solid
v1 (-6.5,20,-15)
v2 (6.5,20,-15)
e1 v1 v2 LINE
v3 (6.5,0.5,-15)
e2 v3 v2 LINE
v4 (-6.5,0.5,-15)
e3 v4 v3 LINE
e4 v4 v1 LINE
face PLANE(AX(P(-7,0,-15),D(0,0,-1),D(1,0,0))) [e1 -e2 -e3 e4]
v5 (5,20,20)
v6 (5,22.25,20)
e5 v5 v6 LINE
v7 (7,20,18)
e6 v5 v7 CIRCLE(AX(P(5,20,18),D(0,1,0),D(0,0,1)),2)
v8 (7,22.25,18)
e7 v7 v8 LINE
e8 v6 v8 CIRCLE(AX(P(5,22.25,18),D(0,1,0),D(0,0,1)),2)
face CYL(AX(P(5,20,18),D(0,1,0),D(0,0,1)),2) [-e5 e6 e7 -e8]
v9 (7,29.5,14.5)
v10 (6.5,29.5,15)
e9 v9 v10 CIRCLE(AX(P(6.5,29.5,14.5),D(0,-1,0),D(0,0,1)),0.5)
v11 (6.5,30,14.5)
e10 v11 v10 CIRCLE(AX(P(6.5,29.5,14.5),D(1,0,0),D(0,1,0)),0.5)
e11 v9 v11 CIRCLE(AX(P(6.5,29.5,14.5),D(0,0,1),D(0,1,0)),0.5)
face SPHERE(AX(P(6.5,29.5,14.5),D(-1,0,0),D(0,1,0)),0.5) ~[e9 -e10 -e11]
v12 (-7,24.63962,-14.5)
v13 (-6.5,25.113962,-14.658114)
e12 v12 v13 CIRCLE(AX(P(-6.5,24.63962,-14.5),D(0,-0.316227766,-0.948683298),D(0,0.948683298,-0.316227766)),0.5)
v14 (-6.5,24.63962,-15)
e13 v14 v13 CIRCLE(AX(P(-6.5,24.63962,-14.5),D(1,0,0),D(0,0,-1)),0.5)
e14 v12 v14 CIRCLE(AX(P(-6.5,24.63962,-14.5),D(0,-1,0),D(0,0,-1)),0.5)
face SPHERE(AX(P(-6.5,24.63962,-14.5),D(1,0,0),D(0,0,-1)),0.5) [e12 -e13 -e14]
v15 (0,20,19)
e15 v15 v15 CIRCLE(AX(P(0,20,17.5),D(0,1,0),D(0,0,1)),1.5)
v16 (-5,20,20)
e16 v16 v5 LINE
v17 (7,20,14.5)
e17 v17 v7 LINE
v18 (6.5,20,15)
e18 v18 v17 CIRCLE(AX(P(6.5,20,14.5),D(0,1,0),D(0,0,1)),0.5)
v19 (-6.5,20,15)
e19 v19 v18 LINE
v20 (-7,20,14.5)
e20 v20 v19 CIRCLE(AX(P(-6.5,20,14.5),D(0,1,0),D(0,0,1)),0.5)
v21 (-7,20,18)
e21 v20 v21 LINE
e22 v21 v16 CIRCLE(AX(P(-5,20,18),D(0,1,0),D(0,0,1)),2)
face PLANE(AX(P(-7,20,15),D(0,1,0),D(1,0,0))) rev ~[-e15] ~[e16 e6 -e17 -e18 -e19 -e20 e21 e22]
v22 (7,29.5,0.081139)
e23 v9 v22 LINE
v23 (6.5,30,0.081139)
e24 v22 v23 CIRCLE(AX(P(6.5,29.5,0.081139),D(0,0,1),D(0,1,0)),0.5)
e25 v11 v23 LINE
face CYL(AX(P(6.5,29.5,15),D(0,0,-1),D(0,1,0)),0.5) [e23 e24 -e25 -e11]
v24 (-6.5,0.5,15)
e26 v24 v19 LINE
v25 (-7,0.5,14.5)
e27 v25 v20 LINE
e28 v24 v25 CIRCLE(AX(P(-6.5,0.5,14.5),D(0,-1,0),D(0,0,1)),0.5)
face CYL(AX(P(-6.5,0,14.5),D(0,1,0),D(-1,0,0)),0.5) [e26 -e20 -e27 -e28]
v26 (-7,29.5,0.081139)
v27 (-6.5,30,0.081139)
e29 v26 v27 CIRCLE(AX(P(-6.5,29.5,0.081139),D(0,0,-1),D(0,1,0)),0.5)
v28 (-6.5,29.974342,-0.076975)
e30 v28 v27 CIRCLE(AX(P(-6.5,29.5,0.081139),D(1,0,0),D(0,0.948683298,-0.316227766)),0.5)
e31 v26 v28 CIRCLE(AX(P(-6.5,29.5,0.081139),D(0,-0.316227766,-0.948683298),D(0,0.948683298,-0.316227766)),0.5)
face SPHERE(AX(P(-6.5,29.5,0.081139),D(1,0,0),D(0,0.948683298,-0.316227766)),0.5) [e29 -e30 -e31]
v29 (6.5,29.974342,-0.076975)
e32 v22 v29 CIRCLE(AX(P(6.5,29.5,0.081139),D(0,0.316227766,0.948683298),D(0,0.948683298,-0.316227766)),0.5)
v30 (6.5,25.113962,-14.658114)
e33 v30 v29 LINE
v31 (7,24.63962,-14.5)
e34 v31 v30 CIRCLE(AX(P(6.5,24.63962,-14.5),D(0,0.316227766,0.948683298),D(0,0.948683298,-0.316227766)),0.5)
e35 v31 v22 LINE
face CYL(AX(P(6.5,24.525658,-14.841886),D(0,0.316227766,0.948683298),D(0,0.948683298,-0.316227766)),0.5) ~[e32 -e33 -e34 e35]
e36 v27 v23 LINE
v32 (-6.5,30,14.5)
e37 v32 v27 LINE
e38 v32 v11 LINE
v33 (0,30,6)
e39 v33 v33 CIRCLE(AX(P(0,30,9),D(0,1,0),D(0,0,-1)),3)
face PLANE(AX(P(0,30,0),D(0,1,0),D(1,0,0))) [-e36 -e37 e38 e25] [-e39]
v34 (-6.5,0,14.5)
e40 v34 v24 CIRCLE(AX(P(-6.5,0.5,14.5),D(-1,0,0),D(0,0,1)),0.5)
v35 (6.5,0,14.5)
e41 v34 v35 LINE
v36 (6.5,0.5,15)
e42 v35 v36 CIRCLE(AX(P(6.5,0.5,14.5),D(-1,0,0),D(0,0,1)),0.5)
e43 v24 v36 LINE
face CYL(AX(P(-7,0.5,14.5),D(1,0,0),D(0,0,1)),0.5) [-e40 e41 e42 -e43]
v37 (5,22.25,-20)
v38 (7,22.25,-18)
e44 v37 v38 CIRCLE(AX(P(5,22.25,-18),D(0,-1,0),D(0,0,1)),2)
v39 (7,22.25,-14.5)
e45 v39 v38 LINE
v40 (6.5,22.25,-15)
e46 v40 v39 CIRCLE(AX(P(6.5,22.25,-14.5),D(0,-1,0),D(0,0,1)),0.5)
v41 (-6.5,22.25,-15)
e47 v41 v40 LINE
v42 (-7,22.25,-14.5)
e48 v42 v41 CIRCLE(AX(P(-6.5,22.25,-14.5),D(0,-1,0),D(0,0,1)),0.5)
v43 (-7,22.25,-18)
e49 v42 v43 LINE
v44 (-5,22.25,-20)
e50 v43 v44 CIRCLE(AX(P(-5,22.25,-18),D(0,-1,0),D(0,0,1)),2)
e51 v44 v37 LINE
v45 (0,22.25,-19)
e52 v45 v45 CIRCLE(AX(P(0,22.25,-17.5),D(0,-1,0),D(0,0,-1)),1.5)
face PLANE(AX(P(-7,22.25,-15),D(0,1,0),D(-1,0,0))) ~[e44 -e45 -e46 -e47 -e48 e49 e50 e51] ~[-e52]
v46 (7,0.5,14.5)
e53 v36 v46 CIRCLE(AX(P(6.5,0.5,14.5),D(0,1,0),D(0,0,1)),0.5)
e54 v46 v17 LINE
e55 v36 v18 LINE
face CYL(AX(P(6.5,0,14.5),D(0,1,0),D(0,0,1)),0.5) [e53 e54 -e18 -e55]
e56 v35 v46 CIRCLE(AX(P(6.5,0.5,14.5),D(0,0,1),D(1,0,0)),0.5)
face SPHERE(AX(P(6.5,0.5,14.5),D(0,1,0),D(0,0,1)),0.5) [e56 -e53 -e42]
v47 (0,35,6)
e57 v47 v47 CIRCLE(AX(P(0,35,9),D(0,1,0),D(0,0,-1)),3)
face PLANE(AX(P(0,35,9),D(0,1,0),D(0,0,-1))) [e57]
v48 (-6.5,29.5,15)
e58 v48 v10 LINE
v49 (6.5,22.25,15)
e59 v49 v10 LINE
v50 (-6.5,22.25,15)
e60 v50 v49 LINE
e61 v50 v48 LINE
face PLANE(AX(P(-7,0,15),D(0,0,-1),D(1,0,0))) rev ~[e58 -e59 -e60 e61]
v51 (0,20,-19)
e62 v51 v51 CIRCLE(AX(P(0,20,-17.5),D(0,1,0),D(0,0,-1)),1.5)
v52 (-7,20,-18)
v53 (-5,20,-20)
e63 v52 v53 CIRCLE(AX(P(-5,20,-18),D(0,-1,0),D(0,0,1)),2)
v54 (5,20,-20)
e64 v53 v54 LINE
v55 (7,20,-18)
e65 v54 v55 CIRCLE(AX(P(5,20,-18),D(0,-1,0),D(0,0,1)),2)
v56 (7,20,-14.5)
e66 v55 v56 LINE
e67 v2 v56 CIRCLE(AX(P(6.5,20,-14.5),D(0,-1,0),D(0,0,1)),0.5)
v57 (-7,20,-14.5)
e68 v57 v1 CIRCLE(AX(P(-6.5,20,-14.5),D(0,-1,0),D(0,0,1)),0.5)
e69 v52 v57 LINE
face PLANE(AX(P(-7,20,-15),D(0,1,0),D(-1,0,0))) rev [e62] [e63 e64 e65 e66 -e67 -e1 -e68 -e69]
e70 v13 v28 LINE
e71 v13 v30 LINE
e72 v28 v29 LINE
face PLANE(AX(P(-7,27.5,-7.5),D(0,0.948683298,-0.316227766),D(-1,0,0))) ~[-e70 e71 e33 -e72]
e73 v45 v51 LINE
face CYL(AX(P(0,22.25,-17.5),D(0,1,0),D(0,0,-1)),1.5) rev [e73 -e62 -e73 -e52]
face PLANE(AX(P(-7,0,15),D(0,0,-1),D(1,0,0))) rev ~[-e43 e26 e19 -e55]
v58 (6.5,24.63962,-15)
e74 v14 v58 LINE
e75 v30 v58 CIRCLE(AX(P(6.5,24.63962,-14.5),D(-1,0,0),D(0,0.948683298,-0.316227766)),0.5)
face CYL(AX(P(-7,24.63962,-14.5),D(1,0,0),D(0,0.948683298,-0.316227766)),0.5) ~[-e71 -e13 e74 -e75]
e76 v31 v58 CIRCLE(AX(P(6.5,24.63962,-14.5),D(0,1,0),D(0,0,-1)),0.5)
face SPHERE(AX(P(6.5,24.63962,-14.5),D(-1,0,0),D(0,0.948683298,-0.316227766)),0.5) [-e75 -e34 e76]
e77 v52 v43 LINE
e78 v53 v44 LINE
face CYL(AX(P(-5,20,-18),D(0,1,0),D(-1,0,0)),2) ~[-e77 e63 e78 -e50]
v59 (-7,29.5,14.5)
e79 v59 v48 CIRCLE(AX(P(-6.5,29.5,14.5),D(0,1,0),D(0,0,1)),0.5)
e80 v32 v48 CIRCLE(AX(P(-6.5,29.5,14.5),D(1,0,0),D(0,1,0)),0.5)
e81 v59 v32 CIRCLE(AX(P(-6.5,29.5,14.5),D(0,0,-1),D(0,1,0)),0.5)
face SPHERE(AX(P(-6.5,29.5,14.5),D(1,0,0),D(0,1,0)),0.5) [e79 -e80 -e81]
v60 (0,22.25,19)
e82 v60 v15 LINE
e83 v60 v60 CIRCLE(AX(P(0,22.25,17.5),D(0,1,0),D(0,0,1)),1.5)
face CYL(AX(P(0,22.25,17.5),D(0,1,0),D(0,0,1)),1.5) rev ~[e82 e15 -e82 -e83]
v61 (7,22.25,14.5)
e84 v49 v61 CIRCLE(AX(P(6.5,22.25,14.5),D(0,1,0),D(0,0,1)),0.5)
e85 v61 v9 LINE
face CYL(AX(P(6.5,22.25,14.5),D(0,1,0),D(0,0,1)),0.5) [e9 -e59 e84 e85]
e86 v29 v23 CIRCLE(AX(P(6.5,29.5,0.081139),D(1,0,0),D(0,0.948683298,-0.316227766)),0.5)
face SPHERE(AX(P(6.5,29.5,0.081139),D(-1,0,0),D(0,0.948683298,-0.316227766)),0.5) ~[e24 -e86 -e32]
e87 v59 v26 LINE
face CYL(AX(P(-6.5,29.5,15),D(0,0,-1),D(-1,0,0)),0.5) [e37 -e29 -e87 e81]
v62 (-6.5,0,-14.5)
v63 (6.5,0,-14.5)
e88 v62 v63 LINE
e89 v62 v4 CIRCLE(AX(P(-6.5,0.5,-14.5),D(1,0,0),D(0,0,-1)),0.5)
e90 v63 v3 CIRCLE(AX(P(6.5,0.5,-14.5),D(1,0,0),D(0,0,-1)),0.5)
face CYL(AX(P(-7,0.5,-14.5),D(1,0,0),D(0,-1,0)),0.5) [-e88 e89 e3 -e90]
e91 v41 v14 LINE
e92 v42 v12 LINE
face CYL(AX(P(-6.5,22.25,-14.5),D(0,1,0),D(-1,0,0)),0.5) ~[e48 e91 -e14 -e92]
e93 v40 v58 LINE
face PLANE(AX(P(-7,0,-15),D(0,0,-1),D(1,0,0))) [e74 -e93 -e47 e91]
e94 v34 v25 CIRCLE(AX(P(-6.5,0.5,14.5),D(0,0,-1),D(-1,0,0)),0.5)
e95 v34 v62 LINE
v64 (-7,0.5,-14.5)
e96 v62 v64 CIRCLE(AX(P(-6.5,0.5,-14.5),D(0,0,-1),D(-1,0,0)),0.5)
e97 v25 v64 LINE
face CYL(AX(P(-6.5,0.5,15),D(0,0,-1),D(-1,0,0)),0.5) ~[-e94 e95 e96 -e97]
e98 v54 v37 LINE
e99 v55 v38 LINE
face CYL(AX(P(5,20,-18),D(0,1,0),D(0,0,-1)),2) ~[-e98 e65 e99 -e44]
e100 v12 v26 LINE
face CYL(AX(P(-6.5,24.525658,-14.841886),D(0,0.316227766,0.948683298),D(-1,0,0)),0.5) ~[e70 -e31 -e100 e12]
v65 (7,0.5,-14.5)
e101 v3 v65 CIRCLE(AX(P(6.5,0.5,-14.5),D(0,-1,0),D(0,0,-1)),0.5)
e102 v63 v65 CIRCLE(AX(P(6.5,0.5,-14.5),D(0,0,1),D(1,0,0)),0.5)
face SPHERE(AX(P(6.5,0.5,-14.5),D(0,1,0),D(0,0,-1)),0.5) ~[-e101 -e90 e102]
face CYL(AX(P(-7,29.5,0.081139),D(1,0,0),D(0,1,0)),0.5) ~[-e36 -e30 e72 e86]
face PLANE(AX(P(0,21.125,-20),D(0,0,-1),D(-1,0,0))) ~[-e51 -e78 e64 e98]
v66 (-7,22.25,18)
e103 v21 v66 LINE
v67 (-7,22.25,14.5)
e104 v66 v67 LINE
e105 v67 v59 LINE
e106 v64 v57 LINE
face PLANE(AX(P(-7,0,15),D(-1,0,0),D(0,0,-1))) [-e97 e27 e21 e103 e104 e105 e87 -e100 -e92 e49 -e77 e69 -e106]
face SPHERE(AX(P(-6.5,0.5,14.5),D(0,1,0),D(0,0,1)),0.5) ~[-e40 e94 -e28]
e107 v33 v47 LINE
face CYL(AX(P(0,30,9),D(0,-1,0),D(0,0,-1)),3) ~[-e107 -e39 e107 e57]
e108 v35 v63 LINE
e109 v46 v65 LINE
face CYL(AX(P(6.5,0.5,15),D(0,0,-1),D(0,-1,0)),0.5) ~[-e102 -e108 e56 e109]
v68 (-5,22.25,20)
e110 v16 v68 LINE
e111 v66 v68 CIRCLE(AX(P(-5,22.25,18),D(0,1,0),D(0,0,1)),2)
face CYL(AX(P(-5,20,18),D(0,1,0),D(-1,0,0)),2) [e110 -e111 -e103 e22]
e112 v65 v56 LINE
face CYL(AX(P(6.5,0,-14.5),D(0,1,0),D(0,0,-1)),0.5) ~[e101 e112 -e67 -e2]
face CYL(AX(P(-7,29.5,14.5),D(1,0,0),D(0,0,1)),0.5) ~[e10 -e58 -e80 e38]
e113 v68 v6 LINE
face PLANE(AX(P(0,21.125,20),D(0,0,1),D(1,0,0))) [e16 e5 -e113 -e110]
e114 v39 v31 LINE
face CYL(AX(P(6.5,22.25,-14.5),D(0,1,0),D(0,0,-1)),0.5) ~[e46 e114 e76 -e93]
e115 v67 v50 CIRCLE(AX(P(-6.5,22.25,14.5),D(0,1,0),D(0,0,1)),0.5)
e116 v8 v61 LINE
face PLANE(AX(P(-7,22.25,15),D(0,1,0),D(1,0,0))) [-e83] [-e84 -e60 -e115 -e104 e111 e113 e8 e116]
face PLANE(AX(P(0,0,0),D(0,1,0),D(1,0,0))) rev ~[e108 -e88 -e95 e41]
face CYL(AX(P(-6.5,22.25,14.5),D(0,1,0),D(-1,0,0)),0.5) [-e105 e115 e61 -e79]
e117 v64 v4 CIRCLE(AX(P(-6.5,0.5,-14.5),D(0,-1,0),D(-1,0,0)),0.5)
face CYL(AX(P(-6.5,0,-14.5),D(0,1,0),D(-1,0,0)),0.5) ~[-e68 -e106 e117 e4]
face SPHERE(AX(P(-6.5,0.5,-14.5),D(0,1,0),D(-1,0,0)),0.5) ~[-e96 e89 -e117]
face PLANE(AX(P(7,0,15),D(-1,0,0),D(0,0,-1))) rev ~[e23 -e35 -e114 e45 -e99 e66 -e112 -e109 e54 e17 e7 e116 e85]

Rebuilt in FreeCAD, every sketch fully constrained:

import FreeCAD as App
import Part
import Sketcher

V = App.Vector


def edges_at(feature, points):
    """Names of the edges that pass closest to the given points."""
    edges = feature.Shape.Edges
    near = lambda p: min(range(len(edges)), key=lambda i: edges[i].distToShape(Part.Vertex(*p))[0])
    return sorted({f"Edge{near(p) + 1}" for p in points})


def add_polygon(sketch, points):
    """Adds a closed chain of lines whose ends are joined by coincident constraints."""
    first, n = sketch.GeometryCount, len(points)
    for a, b in zip(points, points[1:] + points[:1]):
        sketch.addGeometry(Part.LineSegment(App.Vector(*a, 0), App.Vector(*b, 0)), False)
    for i in range(n):
        sketch.addConstraint(Sketcher.Constraint("Coincident", first + i, 2, first + (i + 1) % n, 1))

doc = App.newDocument("Part")
body = doc.addObject("PartDesign::Body", "Body")

sketch1 = body.newObject("Sketcher::SketchObject", "Sketch")
sketch1.AttachmentSupport = (doc.getObject("XZ_Plane"), [""])
sketch1.MapMode = "FlatFace"
add_polygon(sketch1, [(-7, -15), (-7, 15), (7, 15), (7, -15)])
sketch1.addConstraint(Sketcher.Constraint("Vertical", 0))
sketch1.addConstraint(Sketcher.Constraint("Horizontal", 1))
sketch1.addConstraint(Sketcher.Constraint("Vertical", 2))
sketch1.addConstraint(Sketcher.Constraint("Horizontal", 3))
sketch1.addConstraint(Sketcher.Constraint("Symmetric", 0, 2, 2, 2, -1, 1))
sketch1.addConstraint(Sketcher.Constraint("DistanceX", 1, 1, 1, 2, 14.0))
sketch1.addConstraint(Sketcher.Constraint("DistanceY", 0, 1, 0, 2, 30.0))
pad1 = body.newObject("PartDesign::Pad", "Pad")
pad1.Profile = sketch1
pad1.Length = 30
pad1.Reversed = True

sketch2 = body.newObject("Sketcher::SketchObject", "Sketch001")
sketch2.AttachmentSupport = (doc.getObject("XY_Plane"), [""])
sketch2.MapMode = "FlatFace"
sketch2.AttachmentOffset = App.Placement(V(0, 0, 15), App.Rotation())
add_polygon(sketch2, [(-7, 22.2), (-7, 20), (7, 20), (7, 22.2)])
sketch2.addConstraint(Sketcher.Constraint("Vertical", 0))
sketch2.addConstraint(Sketcher.Constraint("Horizontal", 1))
sketch2.addConstraint(Sketcher.Constraint("Vertical", 2))
sketch2.addConstraint(Sketcher.Constraint("Horizontal", 3))
sketch2.addConstraint(Sketcher.Constraint("DistanceX", 1, 1, 1, 2, 14.0))
sketch2.addConstraint(Sketcher.Constraint("DistanceX", 0, 2, -1, 1, 7.0))
sketch2.addConstraint(Sketcher.Constraint("DistanceY", -1, 1, 0, 2, 20.0))
sketch2.addConstraint(Sketcher.Constraint("DistanceY", 0, 2, 0, 1, 2.25))
pad2 = body.newObject("PartDesign::Pad", "Pad001")
pad2.Profile = sketch2
pad2.Length = 5

sketch3 = body.newObject("Sketcher::SketchObject", "Sketch002")
sketch3.AttachmentSupport = (doc.getObject("XZ_Plane"), [""])
sketch3.MapMode = "FlatFace"
sketch3.AttachmentOffset = App.Placement(V(0, 0, -22.25), App.Rotation())
sketch3.addGeometry(Part.Circle(V(0, 17.5, 0), V(0, 0, 1), 1.5), False)
sketch3.addConstraint(Sketcher.Constraint("PointOnObject", 0, 3, -2))
sketch3.addConstraint(Sketcher.Constraint("Diameter", 0, 3.0))
sketch3.addConstraint(Sketcher.Constraint("DistanceY", -1, 1, 0, 3, 17.5))
pocket1 = body.newObject("PartDesign::Pocket", "Pocket")
pocket1.Profile = sketch3
pocket1.Type = "ThroughAll"
pocket1.Reversed = True
doc.recompute()

mirrored = body.newObject("PartDesign::Mirrored", "Mirrored")
mirrored.Originals = [pad2, pocket1]
mirrored.MirrorPlane = (doc.getObject("XY_Plane"), [""])
body.Tip = mirrored

sketch4 = body.newObject("Sketcher::SketchObject", "Sketch003")
sketch4.AttachmentSupport = (doc.getObject("XZ_Plane"), [""])
sketch4.MapMode = "FlatFace"
sketch4.AttachmentOffset = App.Placement(V(0, 0, -30), App.Rotation())
sketch4.addGeometry(Part.Circle(V(0, 9, 0), V(0, 0, 1), 3), False)
sketch4.addConstraint(Sketcher.Constraint("PointOnObject", 0, 3, -2))
sketch4.addConstraint(Sketcher.Constraint("Diameter", 0, 6.0))
sketch4.addConstraint(Sketcher.Constraint("DistanceY", -1, 1, 0, 3, 9.0))
pad3 = body.newObject("PartDesign::Pad", "Pad002")
pad3.Profile = sketch4
pad3.Length = 5
pad3.Reversed = True
doc.recompute()

chamfer = body.newObject("PartDesign::Chamfer", "Chamfer")
chamfer.Base = (pad3, edges_at(pad3, [(0, 30, -15)]))
chamfer.ChamferType = "Two distances"
chamfer.Size = 5
chamfer.Size2 = 15
doc.recompute()

fillet = body.newObject("PartDesign::Fillet", "Fillet")
fillet.Base = (chamfer, edges_at(chamfer, [
    (-7, 21.125, 20),
    (7, 21.125, 20),
    (-7, 21.125, -20),
    (7, 21.125, -20),
]))
fillet.Radius = 2
doc.recompute()

fillet2 = body.newObject("PartDesign::Fillet", "Fillet001")
fillet2.Base = (fillet, edges_at(fillet, [
    (0, 30, 15),
    (7, 10, 15),
    (-7, 10, 15),
    (-7, 10, -15),
    (7, 10, -15),
    (7, 30, 7.5),
    (0, 0, 15),
    (-7, 0, 0),
    (0, 0, -15),
    (7, 0, 0),
    (-7, 30, 7.5),
    (0, 30, 0),
    (-7, 23.625, -15),
    (-7, 27.5, -7.5),
    (7, 23.625, -15),
    (0, 25, -15),
    (7, 27.5, -7.5),
    (7, 26.125, 15),
    (-7, 26.125, 15),
]))
fillet2.Radius = 0.5

doc.recompute()
